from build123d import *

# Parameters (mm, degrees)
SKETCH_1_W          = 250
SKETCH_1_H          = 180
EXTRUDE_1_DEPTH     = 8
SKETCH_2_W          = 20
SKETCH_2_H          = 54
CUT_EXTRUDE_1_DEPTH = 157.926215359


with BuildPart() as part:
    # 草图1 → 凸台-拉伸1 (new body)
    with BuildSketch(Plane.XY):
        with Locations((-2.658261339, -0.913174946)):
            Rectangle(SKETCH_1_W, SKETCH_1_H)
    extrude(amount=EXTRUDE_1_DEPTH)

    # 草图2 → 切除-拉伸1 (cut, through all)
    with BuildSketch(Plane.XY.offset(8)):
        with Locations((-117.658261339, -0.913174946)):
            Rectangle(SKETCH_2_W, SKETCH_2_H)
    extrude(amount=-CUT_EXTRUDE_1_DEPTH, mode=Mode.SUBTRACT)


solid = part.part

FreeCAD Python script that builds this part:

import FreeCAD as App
import Part
import Sketcher

doc = App.newDocument("Part")
body = doc.addObject("PartDesign::Body", "Body")

sketch1 = body.newObject("Sketcher::SketchObject", "Sketch")
sketch1.AttachmentSupport = (doc.getObject("XY_Plane"), [""])
sketch1.MapMode = "FlatFace"
sketch1.addGeometry([
    Part.LineSegment(App.Vector(-128, 89, 0), App.Vector(-128, -91, 0)),
    Part.LineSegment(App.Vector(-128, -91, 0), App.Vector(122, -91, 0)),
    Part.LineSegment(App.Vector(122, -91, 0), App.Vector(122, 89, 0)),
    Part.LineSegment(App.Vector(122, 89, 0), App.Vector(-128, 89, 0)),
], False)
sketch1.addConstraint([
    Sketcher.Constraint("Coincident", 0, 2, 1, 1),
    Sketcher.Constraint("Coincident", 1, 2, 2, 1),
    Sketcher.Constraint("Coincident", 2, 2, 3, 1),
    Sketcher.Constraint("Coincident", 3, 2, 0, 1),
    Sketcher.Constraint("Vertical", 0),
    Sketcher.Constraint("Horizontal", 1),
    Sketcher.Constraint("Vertical", 2),
    Sketcher.Constraint("Horizontal", 3),
    Sketcher.Constraint("DistanceX", 1, 1, 1, 2, 250.0),
    Sketcher.Constraint("DistanceY", 0, 2, 0, 1, 180.0),
    Sketcher.Constraint("DistanceX", 0, 2, -1, 1, 127.658261),
    Sketcher.Constraint("DistanceY", 0, 2, -1, 1, 90.913175),
])
pad1 = body.newObject("PartDesign::Pad", "Pad")
pad1.Profile = sketch1
pad1.Length = 8

sketch2 = body.newObject("Sketcher::SketchObject", "Sketch001")
sketch2.AttachmentSupport = (doc.getObject("XY_Plane"), [""])
sketch2.MapMode = "FlatFace"
sketch2.AttachmentOffset = App.Placement(App.Vector(0, 0, 8), App.Rotation())
sketch2.addGeometry([
    Part.LineSegment(App.Vector(-128, 26, 0), App.Vector(-128, -28, 0)),
    Part.LineSegment(App.Vector(-128, -28, 0), App.Vector(-108, -28, 0)),
    Part.LineSegment(App.Vector(-108, -28, 0), App.Vector(-108, 26, 0)),
    Part.LineSegment(App.Vector(-108, 26, 0), App.Vector(-128, 26, 0)),
], False)
sketch2.addConstraint([
    Sketcher.Constraint("Coincident", 0, 2, 1, 1),
    Sketcher.Constraint("Coincident", 1, 2, 2, 1),
    Sketcher.Constraint("Coincident", 2, 2, 3, 1),
    Sketcher.Constraint("Coincident", 3, 2, 0, 1),
    Sketcher.Constraint("Vertical", 0),
    Sketcher.Constraint("Horizontal", 1),
    Sketcher.Constraint("Vertical", 2),
    Sketcher.Constraint("Horizontal", 3),
    Sketcher.Constraint("DistanceX", 1, 1, 1, 2, 20.0),
    Sketcher.Constraint("DistanceY", 0, 2, 0, 1, 54.0),
    Sketcher.Constraint("DistanceX", 0, 2, -1, 1, 127.658261),
    Sketcher.Constraint("DistanceY", 0, 2, -1, 1, 27.913175),
])
pocket1 = body.newObject("PartDesign::Pocket", "Pocket")
pocket1.Profile = sketch2
pocket1.Type = "ThroughAll"

doc.recompute()
